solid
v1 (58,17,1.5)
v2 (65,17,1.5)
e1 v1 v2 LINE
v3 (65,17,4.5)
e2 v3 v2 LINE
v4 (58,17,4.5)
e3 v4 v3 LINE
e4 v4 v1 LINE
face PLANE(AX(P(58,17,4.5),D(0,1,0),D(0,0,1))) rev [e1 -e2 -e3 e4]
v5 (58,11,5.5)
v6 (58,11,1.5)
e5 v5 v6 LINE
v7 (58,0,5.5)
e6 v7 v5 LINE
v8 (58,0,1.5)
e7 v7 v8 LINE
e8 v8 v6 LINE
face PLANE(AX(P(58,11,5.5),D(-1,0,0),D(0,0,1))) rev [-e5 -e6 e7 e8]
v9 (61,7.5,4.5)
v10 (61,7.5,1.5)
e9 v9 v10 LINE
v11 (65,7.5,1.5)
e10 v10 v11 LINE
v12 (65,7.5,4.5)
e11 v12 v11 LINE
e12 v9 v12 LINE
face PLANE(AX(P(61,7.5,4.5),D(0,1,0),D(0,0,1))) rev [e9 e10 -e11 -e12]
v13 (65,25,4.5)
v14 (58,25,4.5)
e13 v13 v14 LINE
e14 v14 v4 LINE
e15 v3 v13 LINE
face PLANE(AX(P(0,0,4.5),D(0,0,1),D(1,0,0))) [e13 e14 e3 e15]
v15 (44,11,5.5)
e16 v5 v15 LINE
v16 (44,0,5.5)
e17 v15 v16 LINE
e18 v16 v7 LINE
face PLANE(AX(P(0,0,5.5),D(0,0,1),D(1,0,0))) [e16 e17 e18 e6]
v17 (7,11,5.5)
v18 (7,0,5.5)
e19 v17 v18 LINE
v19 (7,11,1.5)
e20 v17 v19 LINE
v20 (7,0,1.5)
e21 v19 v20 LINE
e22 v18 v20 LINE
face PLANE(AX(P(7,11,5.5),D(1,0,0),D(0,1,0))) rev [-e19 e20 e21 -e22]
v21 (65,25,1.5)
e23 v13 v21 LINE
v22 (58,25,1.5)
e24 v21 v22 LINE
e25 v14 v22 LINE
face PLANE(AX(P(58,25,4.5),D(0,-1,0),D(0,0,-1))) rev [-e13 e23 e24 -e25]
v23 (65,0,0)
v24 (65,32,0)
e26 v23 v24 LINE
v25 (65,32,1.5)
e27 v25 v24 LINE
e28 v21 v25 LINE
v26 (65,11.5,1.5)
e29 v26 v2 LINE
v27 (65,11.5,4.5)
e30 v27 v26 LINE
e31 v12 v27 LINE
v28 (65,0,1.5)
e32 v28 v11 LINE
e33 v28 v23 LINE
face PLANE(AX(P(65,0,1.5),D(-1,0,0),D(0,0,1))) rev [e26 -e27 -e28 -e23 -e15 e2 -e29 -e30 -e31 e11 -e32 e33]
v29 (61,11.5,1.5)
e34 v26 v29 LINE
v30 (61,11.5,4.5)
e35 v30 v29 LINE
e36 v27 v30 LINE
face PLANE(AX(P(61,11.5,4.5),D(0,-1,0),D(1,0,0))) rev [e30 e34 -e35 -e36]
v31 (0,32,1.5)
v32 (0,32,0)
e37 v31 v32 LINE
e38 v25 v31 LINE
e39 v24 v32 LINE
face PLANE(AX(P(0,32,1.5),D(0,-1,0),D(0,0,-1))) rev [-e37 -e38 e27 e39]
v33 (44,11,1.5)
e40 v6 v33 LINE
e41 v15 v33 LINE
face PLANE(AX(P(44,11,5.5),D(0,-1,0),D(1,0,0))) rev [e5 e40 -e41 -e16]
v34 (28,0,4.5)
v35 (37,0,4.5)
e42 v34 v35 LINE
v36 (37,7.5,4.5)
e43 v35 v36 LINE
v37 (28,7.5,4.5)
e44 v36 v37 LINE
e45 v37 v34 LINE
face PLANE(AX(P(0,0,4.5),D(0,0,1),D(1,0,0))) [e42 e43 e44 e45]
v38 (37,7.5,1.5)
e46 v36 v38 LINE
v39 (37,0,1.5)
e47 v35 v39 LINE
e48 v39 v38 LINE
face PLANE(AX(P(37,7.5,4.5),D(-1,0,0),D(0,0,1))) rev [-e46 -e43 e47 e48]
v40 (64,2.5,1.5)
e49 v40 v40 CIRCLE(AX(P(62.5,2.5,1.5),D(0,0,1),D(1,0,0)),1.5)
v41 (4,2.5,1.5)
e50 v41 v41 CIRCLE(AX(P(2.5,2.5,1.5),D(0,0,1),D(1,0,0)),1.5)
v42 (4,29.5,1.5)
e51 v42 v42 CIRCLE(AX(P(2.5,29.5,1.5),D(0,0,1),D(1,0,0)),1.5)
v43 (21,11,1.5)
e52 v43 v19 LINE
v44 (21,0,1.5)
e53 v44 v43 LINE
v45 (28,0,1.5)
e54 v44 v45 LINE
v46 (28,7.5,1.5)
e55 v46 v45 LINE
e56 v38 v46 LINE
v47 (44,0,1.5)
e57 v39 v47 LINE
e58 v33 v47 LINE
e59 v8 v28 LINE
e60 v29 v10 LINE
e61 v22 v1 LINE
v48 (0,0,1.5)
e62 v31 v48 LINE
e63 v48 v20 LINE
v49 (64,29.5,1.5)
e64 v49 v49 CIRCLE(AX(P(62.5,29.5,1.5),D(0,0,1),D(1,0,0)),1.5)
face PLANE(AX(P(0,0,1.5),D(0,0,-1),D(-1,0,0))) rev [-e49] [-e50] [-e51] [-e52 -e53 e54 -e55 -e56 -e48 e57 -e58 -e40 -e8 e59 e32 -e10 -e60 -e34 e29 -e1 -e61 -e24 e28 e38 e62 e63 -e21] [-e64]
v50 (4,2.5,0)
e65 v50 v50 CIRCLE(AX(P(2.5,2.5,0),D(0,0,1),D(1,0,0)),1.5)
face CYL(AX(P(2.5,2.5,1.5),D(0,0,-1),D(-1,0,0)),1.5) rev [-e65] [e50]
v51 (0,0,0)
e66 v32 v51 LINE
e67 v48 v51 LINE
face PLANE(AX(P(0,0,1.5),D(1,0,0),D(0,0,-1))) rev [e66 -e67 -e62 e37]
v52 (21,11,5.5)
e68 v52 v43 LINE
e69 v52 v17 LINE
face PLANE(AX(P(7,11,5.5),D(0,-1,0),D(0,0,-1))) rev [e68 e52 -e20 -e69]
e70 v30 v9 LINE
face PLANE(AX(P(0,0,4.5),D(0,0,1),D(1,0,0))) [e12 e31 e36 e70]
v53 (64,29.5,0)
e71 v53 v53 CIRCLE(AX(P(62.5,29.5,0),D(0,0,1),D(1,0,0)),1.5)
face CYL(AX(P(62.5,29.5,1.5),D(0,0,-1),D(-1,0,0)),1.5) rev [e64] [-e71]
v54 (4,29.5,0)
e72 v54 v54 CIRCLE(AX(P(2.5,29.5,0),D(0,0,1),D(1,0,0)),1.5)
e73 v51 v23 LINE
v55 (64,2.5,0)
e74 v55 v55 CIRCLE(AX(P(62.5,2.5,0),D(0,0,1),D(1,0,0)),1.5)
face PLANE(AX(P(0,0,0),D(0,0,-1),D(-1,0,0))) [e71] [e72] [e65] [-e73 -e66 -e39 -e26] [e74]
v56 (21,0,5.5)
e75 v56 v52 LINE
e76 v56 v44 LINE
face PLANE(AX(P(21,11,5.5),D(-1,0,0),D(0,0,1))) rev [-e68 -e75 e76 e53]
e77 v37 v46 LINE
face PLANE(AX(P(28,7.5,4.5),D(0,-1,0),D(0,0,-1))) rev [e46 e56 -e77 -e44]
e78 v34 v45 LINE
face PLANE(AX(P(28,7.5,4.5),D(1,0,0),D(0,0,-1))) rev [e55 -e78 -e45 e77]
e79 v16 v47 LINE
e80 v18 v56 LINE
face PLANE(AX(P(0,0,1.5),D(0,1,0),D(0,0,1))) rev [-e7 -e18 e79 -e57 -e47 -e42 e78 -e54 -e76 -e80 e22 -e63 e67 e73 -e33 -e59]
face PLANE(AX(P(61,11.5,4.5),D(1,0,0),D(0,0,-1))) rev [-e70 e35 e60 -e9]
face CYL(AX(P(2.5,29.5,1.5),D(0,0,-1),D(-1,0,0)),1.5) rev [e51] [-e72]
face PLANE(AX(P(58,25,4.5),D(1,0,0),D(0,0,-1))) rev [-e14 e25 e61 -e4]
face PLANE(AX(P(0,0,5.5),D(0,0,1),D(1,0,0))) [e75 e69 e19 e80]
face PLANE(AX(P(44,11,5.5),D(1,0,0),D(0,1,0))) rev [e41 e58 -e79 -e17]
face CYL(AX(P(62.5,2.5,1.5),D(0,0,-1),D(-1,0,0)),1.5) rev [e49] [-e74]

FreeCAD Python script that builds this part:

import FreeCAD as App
import Part
import Sketcher


def add_polygon(sketch, points):
    """Adds a closed chain of lines whose ends are joined by coincident constraints."""
    first, n = sketch.GeometryCount, len(points)
    for a, b in zip(points, points[1:] + points[:1]):
        sketch.addGeometry(Part.LineSegment(App.Vector(*a, 0), App.Vector(*b, 0)), False)
    for i in range(n):
        sketch.addConstraint(Sketcher.Constraint("Coincident", first + i, 2, first + (i + 1) % n, 1))

doc = App.newDocument("Part")
body = doc.addObject("PartDesign::Body", "Body")

sketch1 = body.newObject("Sketcher::SketchObject", "Sketch")
sketch1.AttachmentSupport = (doc.getObject("XY_Plane"), [""])
sketch1.MapMode = "FlatFace"
add_polygon(sketch1, [(0, 32), (0, 0), (65, 0), (65, 32)])
sketch1.addGeometry(Part.Circle(App.Vector(2.5, 2.5, 0), App.Vector(0, 0, 1), 1.5), False)
sketch1.addGeometry(Part.Circle(App.Vector(62.5, 2.5, 0), App.Vector(0, 0, 1), 1.5), False)
sketch1.addGeometry(Part.Circle(App.Vector(2.5, 29.5, 0), App.Vector(0, 0, 1), 1.5), False)
sketch1.addGeometry(Part.Circle(App.Vector(62.5, 29.5, 0), App.Vector(0, 0, 1), 1.5), False)
sketch1.addConstraint(Sketcher.Constraint("Vertical", 0))
sketch1.addConstraint(Sketcher.Constraint("Horizontal", 1))
sketch1.addConstraint(Sketcher.Constraint("Vertical", 2))
sketch1.addConstraint(Sketcher.Constraint("Horizontal", 3))
sketch1.addConstraint(Sketcher.Constraint("Coincident", 0, 2, -1, 1))
sketch1.addConstraint(Sketcher.Constraint("Equal", 4, 5))
sketch1.addConstraint(Sketcher.Constraint("Equal", 5, 6))
sketch1.addConstraint(Sketcher.Constraint("Equal", 6, 7))
sketch1.addConstraint(Sketcher.Constraint("Horizontal", 4, 3, 5, 3))
sketch1.addConstraint(Sketcher.Constraint("Horizontal", 6, 3, 7, 3))
sketch1.addConstraint(Sketcher.Constraint("Vertical", 4, 3, 6, 3))
sketch1.addConstraint(Sketcher.Constraint("Vertical", 5, 3, 7, 3))
sketch1.addConstraint(Sketcher.Constraint("Diameter", 4, 3.0))
sketch1.addConstraint(Sketcher.Constraint("DistanceX", 1, 1, 1, 2, 65.0))
sketch1.addConstraint(Sketcher.Constraint("DistanceY", 0, 2, 0, 1, 32.0))
sketch1.addConstraint(Sketcher.Constraint("DistanceX", 4, 3, 5, 3, 60.0))
sketch1.addConstraint(Sketcher.Constraint("DistanceY", 4, 3, 6, 3, 27.0))
sketch1.addConstraint(Sketcher.Constraint("DistanceX", -1, 1, 4, 3, 2.5))
sketch1.addConstraint(Sketcher.Constraint("DistanceY", -1, 1, 4, 3, 2.5))
pad1 = body.newObject("PartDesign::Pad", "Pad")
pad1.Profile = sketch1
pad1.Length = 1.5

sketch2 = body.newObject("Sketcher::SketchObject", "Sketch001")
sketch2.AttachmentSupport = (doc.getObject("XY_Plane"), [""])
sketch2.MapMode = "FlatFace"
sketch2.AttachmentOffset = App.Placement(App.Vector(0, 0, 1.5), App.Rotation())
add_polygon(sketch2, [(7, 11), (7, 0), (21, 0), (21, 11)])
add_polygon(sketch2, [(44, 11), (44, 0), (58, 0), (58, 11)])
sketch2.addConstraint(Sketcher.Constraint("Vertical", 0))
sketch2.addConstraint(Sketcher.Constraint("Horizontal", 1))
sketch2.addConstraint(Sketcher.Constraint("Vertical", 2))
sketch2.addConstraint(Sketcher.Constraint("Horizontal", 3))
sketch2.addConstraint(Sketcher.Constraint("Vertical", 4))
sketch2.addConstraint(Sketcher.Constraint("Horizontal", 5))
sketch2.addConstraint(Sketcher.Constraint("Vertical", 6))
sketch2.addConstraint(Sketcher.Constraint("Horizontal", 7))
sketch2.addConstraint(Sketcher.Constraint("PointOnObject", 0, 2, -1))
sketch2.addConstraint(Sketcher.Constraint("PointOnObject", 4, 2, -1))
sketch2.addConstraint(Sketcher.Constraint("Horizontal", 3, 2, 6, 2))
sketch2.addConstraint(Sketcher.Constraint("Equal", 3, 5))
sketch2.addConstraint(Sketcher.Constraint("DistanceX", 1, 1, 1, 2, 14.0))
sketch2.addConstraint(Sketcher.Constraint("DistanceY", 0, 2, 0, 1, 11.0))
sketch2.addConstraint(Sketcher.Constraint("DistanceX", -1, 1, 0, 2, 7.0))
sketch2.addConstraint(Sketcher.Constraint("DistanceX", -1, 1, 4, 2, 44.0))
pad2 = body.newObject("PartDesign::Pad", "Pad001")
pad2.Profile = sketch2
pad2.Length = 4

sketch3 = body.newObject("Sketcher::SketchObject", "Sketch002")
sketch3.AttachmentSupport = (doc.getObject("XY_Plane"), [""])
sketch3.MapMode = "FlatFace"
sketch3.AttachmentOffset = App.Placement(App.Vector(0, 0, 1.5), App.Rotation())
add_polygon(sketch3, [(58, 25), (58, 17), (65, 17), (65, 25)])
add_polygon(sketch3, [(61, 11.5), (61, 7.5), (65, 7.5), (65, 11.5)])
add_polygon(sketch3, [(28, 7.5), (28, 0), (37, 0), (37, 7.5)])
sketch3.addConstraint(Sketcher.Constraint("Vertical", 0))
sketch3.addConstraint(Sketcher.Constraint("Horizontal", 1))
sketch3.addConstraint(Sketcher.Constraint("Vertical", 2))
sketch3.addConstraint(Sketcher.Constraint("Horizontal", 3))
sketch3.addConstraint(Sketcher.Constraint("Vertical", 4))
sketch3.addConstraint(Sketcher.Constraint("Horizontal", 5))
sketch3.addConstraint(Sketcher.Constraint("Vertical", 6))
sketch3.addConstraint(Sketcher.Constraint("Horizontal", 7))
sketch3.addConstraint(Sketcher.Constraint("Vertical", 8))
sketch3.addConstraint(Sketcher.Constraint("Horizontal", 9))
sketch3.addConstraint(Sketcher.Constraint("Vertical", 10))
sketch3.addConstraint(Sketcher.Constraint("Horizontal", 11))
sketch3.addConstraint(Sketcher.Constraint("PointOnObject", 8, 2, -1))
sketch3.addConstraint(Sketcher.Constraint("Horizontal", 5, 2, 10, 2))
sketch3.addConstraint(Sketcher.Constraint("Vertical", 2, 2, 5, 2))
sketch3.addConstraint(Sketcher.Constraint("Equal", 7, 4))
sketch3.addConstraint(Sketcher.Constraint("DistanceX", 1, 1, 1, 2, 7.0))
sketch3.addConstraint(Sketcher.Constraint("DistanceX", 5, 1, 5, 2, 4.0))
sketch3.addConstraint(Sketcher.Constraint("DistanceX", 9, 1, 9, 2, 9.0))
sketch3.addConstraint(Sketcher.Constraint("DistanceY", 0, 2, 0, 1, 8.0))
sketch3.addConstraint(Sketcher.Constraint("DistanceY", 8, 2, 8, 1, 7.5))
sketch3.addConstraint(Sketcher.Constraint("DistanceX", -1, 1, 0, 2, 58.0))
sketch3.addConstraint(Sketcher.Constraint("DistanceY", -1, 1, 0, 2, 17.0))
sketch3.addConstraint(Sketcher.Constraint("DistanceX", -1, 1, 8, 2, 28.0))
pad3 = body.newObject("PartDesign::Pad", "Pad002")
pad3.Profile = sketch3
pad3.Length = 3

doc.recompute()
